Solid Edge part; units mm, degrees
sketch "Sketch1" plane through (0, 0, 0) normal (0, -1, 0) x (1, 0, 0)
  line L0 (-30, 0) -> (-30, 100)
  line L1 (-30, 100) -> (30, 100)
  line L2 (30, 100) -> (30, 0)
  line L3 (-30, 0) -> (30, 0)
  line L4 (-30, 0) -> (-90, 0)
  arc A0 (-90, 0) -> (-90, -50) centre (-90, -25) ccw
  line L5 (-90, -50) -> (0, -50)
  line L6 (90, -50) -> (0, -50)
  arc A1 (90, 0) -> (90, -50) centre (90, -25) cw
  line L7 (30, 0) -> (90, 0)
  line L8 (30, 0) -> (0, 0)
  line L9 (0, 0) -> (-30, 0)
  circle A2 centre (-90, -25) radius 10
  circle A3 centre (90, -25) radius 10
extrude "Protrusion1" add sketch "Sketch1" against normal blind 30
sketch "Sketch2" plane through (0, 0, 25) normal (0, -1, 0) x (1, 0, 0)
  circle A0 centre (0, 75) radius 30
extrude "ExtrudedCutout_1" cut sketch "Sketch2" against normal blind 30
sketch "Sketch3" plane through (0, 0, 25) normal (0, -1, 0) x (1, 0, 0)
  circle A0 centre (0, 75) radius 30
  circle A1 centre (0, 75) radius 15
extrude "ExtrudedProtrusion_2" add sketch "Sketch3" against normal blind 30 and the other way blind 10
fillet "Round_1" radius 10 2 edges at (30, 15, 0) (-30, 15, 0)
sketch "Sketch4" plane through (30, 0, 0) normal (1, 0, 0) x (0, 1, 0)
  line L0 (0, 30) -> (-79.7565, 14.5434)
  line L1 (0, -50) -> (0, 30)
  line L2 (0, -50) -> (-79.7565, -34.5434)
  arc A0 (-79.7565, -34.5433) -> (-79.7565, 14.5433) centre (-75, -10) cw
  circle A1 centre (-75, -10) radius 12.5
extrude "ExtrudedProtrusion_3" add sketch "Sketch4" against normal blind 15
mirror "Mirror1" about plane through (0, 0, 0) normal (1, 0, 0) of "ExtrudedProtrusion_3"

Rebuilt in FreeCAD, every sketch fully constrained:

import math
import FreeCAD as App
import Part
import Sketcher
from FreeCAD import Vector


def edges_at(feature, points):
    """Names of the edges that pass closest to the given points."""
    edges = feature.Shape.Edges
    near = lambda p: min(range(len(edges)), key=lambda i: edges[i].distToShape(Part.Vertex(*p))[0])
    return sorted({f"Edge{near(p) + 1}" for p in points})

doc = App.newDocument("Part")
body = doc.addObject("PartDesign::Body", "Body")

sketch1 = doc.addObject("Sketcher::SketchObject", "Sketch")
body.addObject(sketch1)
sketch1.AttachmentSupport = (doc.XZ_Plane, [""])
sketch1.MapMode = "FlatFace"
sketch1.addGeometry([
    Part.LineSegment(Vector(-30, 100, 0), Vector(-30, 0, 0)),
    Part.LineSegment(Vector(-30, 0, 0), Vector(-90, 0, 0)),
    Part.ArcOfCircle(Part.Circle(Vector(-90, -25, 0), Vector(0, 0, 1), 25), math.radians(90), math.radians(270)),
    Part.LineSegment(Vector(-90, -50, 0), Vector(90, -50, 0)),
    Part.ArcOfCircle(Part.Circle(Vector(90, -25, 0), Vector(0, 0, 1), 25), math.radians(-90), math.radians(90)),
    Part.LineSegment(Vector(90, 0, 0), Vector(30, 0, 0)),
    Part.LineSegment(Vector(30, 0, 0), Vector(30, 100, 0)),
    Part.LineSegment(Vector(30, 100, 0), Vector(-30, 100, 0)),
    Part.Circle(Vector(-90, -25, 0), Vector(0, 0, 1), 10),
    Part.Circle(Vector(90, -25, 0), Vector(0, 0, 1), 10),
], False)
sketch1.addConstraint([
    Sketcher.Constraint("Coincident", 0, 2, 1, 1),
    Sketcher.Constraint("Tangent", 1, 2, 2, 1),
    Sketcher.Constraint("Tangent", 2, 2, 3, 1),
    Sketcher.Constraint("Tangent", 3, 2, 4, 1),
    Sketcher.Constraint("Tangent", 4, 2, 5, 1),
    Sketcher.Constraint("Coincident", 5, 2, 6, 1),
    Sketcher.Constraint("Coincident", 6, 2, 7, 1),
    Sketcher.Constraint("Coincident", 7, 2, 0, 1),
    Sketcher.Constraint("Vertical", 0),
    Sketcher.Constraint("Horizontal", 1),
    Sketcher.Constraint("Horizontal", 3),
    Sketcher.Constraint("Horizontal", 5),
    Sketcher.Constraint("Vertical", 6),
    Sketcher.Constraint("Horizontal", 7),
    Sketcher.Constraint("Coincident", 8, 3, 2, 3),
    Sketcher.Constraint("Coincident", 9, 3, 4, 3),
    Sketcher.Constraint("Equal", 2, 4),
    Sketcher.Constraint("Equal", 8, 9),
    Sketcher.Constraint("Symmetric", 1, 2, 4, 2, -1, 1),
    Sketcher.Constraint("Equal", 1, 5),
    Sketcher.Constraint("Equal", 5, 7),
    Sketcher.Constraint("Diameter", 8, 20.0),
    Sketcher.Constraint("Radius", 2, 25.0),
    Sketcher.Constraint("DistanceX", 1, 2, 1, 1, 60.0),
    Sketcher.Constraint("DistanceY", 0, 2, 0, 1, 100.0),
])
pad1 = doc.addObject("PartDesign::Pad", "Pad")
body.addObject(pad1)
pad1.Profile = sketch1
pad1.Length = 30
pad1.Reversed = True

sketch2 = doc.addObject("Sketcher::SketchObject", "Sketch001")
body.addObject(sketch2)
sketch2.AttachmentSupport = (doc.XZ_Plane, [""])
sketch2.MapMode = "FlatFace"
sketch2.addGeometry(Part.Circle(Vector(0, 100, 0), Vector(0, 0, 1), 30), False)
sketch2.addConstraint([
    Sketcher.Constraint("PointOnObject", 0, 3, -2),
    Sketcher.Constraint("Diameter", 0, 60.0),
    Sketcher.Constraint("DistanceY", -1, 1, 0, 3, 100.0),
])
pocket1 = doc.addObject("PartDesign::Pocket", "Pocket")
body.addObject(pocket1)
pocket1.Profile = sketch2
pocket1.Length = 30

sketch3 = doc.addObject("Sketcher::SketchObject", "Sketch002")
body.addObject(sketch3)
sketch3.AttachmentSupport = (doc.XZ_Plane, [""])
sketch3.MapMode = "FlatFace"
sketch3.addGeometry([
    Part.Circle(Vector(0, 100, 0), Vector(0, 0, 1), 30),
    Part.Circle(Vector(0, 100, 0), Vector(0, 0, 1), 15),
], False)
sketch3.addConstraint([
    Sketcher.Constraint("Coincident", 1, 3, 0, 3),
    Sketcher.Constraint("PointOnObject", 0, 3, -2),
    Sketcher.Constraint("Diameter", 0, 60.0),
    Sketcher.Constraint("Diameter", 1, 30.0),
    Sketcher.Constraint("DistanceY", -1, 1, 0, 3, 100.0),
])
pad2 = doc.addObject("PartDesign::Pad", "Pad001")
body.addObject(pad2)
pad2.Profile = sketch3
pad2.Type = "TwoLengths"
pad2.Length = 30
pad2.Length2 = 10
pad2.Reversed = True
doc.recompute()

fillet = doc.addObject("PartDesign::Fillet", "Fillet")
body.addObject(fillet)
fillet.Base = (pad2, edges_at(pad2, [(30, 15, 0), (-30, 15, 0)]))
fillet.Radius = 10

sketch4 = doc.addObject("Sketcher::SketchObject", "Sketch003")
body.addObject(sketch4)
sketch4.AttachmentSupport = (doc.YZ_Plane, [""])
sketch4.MapMode = "FlatFace"
sketch4.AttachmentOffset = App.Placement(Vector(0, 0, 30), App.Rotation())
sketch4.addGeometry([
    Part.LineSegment(Vector(0, -50, 0), Vector(0, 30, 0)),
    Part.LineSegment(Vector(0, 30, 0), Vector(-80, 15, 0)),
    Part.ArcOfCircle(Part.Circle(Vector(-75, -10, 0), Vector(0, 0, 1), 25), math.radians(101), math.radians(259)),
    Part.LineSegment(Vector(-80, -35, 0), Vector(0, -50, 0)),
    Part.Circle(Vector(-75, -10, 0), Vector(0, 0, 1), 12),
], False)
sketch4.addConstraint([
    Sketcher.Constraint("Coincident", 0, 2, 1, 1),
    Sketcher.Constraint("Tangent", 1, 2, 2, 1),
    Sketcher.Constraint("Tangent", 2, 2, 3, 1),
    Sketcher.Constraint("Coincident", 3, 2, 0, 1),
    Sketcher.Constraint("Vertical", 0),
    Sketcher.Constraint("Coincident", 4, 3, 2, 3),
    Sketcher.Constraint("PointOnObject", 0, 2, -2),
    Sketcher.Constraint("Vertical", 1, 2, 2, 2),
    Sketcher.Constraint("Diameter", 4, 25.0),
    Sketcher.Constraint("Radius", 2, 25.0),
    Sketcher.Constraint("DistanceY", 0, 1, 0, 2, 80.0),
    Sketcher.Constraint("DistanceX", 2, 3, -1, 1, 75.0),
    Sketcher.Constraint("DistanceY", 2, 3, -1, 1, 10.0),
])
pad3 = doc.addObject("PartDesign::Pad", "Pad002")
body.addObject(pad3)
pad3.Profile = sketch4
pad3.Length = 15
pad3.Reversed = True
doc.recompute()

mirrored = doc.addObject("PartDesign::Mirrored", "Mirrored")
body.addObject(mirrored)
mirrored.Originals = [pad3]
mirrored.MirrorPlane = (doc.YZ_Plane, [""])
body.Tip = mirrored

doc.recompute()
